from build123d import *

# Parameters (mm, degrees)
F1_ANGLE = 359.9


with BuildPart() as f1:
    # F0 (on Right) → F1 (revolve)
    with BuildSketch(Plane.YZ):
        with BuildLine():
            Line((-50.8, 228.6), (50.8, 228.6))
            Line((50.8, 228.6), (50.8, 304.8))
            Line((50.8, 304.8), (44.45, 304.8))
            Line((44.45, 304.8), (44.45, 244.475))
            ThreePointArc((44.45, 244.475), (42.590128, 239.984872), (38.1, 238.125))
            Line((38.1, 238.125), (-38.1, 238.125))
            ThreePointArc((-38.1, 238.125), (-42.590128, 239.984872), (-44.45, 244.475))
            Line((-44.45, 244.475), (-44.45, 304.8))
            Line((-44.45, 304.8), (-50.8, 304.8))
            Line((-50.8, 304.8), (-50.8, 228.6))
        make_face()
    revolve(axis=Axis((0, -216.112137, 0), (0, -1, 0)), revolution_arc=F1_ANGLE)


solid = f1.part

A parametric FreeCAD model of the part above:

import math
import FreeCAD as App
import Part
import Sketcher
from FreeCAD import Vector
Q = App.Units.Quantity

doc = App.newDocument("Part")
body = doc.addObject("PartDesign::Body", "Body")

# Sketch on YZ plane
sketch1 = body.newObject("Sketcher::SketchObject", "Sketch")
sketch1.AttachmentSupport = (doc.getObject("YZ_Plane"), [""])
sketch1.MapMode = "FlatFace"
sketch1.addGeometry([
    Part.LineSegment(Vector(-51, 229, 0), Vector(51, 229, 0)),  # 0
    Part.LineSegment(Vector(51, 229, 0), Vector(51, 305, 0)),  # 1
    Part.LineSegment(Vector(51, 305, 0), Vector(44, 305, 0)),  # 2
    Part.LineSegment(Vector(44, 305, 0), Vector(44, 244, 0)),  # 3
    Part.ArcOfCircle(Part.Circle(Vector(38, 244, 0), Vector(0, 0, 1), 6), math.radians(-90), math.radians(0)),  # 4
    Part.LineSegment(Vector(38, 238, 0), Vector(-38, 238, 0)),  # 5
    Part.ArcOfCircle(Part.Circle(Vector(-38, 244, 0), Vector(0, 0, 1), 6), math.radians(-180), math.radians(-90)),  # 6
    Part.LineSegment(Vector(-44, 244, 0), Vector(-44, 305, 0)),  # 7
    Part.LineSegment(Vector(-44, 305, 0), Vector(-51, 305, 0)),  # 8
    Part.LineSegment(Vector(-51, 305, 0), Vector(-51, 229, 0)),  # 9
], False)
sketch1.addConstraint([
    Sketcher.Constraint("Coincident", 0, 2, 1, 1),
    Sketcher.Constraint("Coincident", 1, 2, 2, 1),
    Sketcher.Constraint("Coincident", 2, 2, 3, 1),
    Sketcher.Constraint("Tangent", 3, 2, 4, 2),
    Sketcher.Constraint("Tangent", 4, 1, 5, 1),
    Sketcher.Constraint("Tangent", 5, 2, 6, 2),
    Sketcher.Constraint("Tangent", 6, 1, 7, 1),
    Sketcher.Constraint("Coincident", 7, 2, 8, 1),
    Sketcher.Constraint("Coincident", 8, 2, 9, 1),
    Sketcher.Constraint("Coincident", 9, 2, 0, 1),
    Sketcher.Constraint("Horizontal", 0),
    Sketcher.Constraint("Vertical", 1),
    Sketcher.Constraint("Horizontal", 2),
    Sketcher.Constraint("Vertical", 3),
    Sketcher.Constraint("Horizontal", 5),
    Sketcher.Constraint("Vertical", 7),
    Sketcher.Constraint("Horizontal", 8),
    Sketcher.Constraint("Vertical", 9),
    Sketcher.Constraint("Equal", 4, 6),
    Sketcher.Constraint("Symmetric", 2, 2, 7, 2, -2),
    Sketcher.Constraint("Equal", 2, 8),
    Sketcher.Constraint("Equal", 5, 1),
    Sketcher.Constraint("DistanceX", 0, 1, 0, 2, Q("4 in")),
    Sketcher.Constraint("DistanceX", 5, 2, 5, 1, Q("3 in")),
    Sketcher.Constraint("Radius", 4, Q("0.25 in")),
    Sketcher.Constraint("DistanceY", -1, 1, 0, 2, Q("9 in")),
    Sketcher.Constraint("DistanceY", 3, 2, 3, 1, Q("2.375 in")),
])
revolution = body.newObject("PartDesign::Revolution", "Revolution")
revolution.Profile = sketch1
revolution.ReferenceAxis = (sketch1, ["H_Axis"])
revolution.Angle = 359.9
revolution.Reversed = True

doc.recompute()
